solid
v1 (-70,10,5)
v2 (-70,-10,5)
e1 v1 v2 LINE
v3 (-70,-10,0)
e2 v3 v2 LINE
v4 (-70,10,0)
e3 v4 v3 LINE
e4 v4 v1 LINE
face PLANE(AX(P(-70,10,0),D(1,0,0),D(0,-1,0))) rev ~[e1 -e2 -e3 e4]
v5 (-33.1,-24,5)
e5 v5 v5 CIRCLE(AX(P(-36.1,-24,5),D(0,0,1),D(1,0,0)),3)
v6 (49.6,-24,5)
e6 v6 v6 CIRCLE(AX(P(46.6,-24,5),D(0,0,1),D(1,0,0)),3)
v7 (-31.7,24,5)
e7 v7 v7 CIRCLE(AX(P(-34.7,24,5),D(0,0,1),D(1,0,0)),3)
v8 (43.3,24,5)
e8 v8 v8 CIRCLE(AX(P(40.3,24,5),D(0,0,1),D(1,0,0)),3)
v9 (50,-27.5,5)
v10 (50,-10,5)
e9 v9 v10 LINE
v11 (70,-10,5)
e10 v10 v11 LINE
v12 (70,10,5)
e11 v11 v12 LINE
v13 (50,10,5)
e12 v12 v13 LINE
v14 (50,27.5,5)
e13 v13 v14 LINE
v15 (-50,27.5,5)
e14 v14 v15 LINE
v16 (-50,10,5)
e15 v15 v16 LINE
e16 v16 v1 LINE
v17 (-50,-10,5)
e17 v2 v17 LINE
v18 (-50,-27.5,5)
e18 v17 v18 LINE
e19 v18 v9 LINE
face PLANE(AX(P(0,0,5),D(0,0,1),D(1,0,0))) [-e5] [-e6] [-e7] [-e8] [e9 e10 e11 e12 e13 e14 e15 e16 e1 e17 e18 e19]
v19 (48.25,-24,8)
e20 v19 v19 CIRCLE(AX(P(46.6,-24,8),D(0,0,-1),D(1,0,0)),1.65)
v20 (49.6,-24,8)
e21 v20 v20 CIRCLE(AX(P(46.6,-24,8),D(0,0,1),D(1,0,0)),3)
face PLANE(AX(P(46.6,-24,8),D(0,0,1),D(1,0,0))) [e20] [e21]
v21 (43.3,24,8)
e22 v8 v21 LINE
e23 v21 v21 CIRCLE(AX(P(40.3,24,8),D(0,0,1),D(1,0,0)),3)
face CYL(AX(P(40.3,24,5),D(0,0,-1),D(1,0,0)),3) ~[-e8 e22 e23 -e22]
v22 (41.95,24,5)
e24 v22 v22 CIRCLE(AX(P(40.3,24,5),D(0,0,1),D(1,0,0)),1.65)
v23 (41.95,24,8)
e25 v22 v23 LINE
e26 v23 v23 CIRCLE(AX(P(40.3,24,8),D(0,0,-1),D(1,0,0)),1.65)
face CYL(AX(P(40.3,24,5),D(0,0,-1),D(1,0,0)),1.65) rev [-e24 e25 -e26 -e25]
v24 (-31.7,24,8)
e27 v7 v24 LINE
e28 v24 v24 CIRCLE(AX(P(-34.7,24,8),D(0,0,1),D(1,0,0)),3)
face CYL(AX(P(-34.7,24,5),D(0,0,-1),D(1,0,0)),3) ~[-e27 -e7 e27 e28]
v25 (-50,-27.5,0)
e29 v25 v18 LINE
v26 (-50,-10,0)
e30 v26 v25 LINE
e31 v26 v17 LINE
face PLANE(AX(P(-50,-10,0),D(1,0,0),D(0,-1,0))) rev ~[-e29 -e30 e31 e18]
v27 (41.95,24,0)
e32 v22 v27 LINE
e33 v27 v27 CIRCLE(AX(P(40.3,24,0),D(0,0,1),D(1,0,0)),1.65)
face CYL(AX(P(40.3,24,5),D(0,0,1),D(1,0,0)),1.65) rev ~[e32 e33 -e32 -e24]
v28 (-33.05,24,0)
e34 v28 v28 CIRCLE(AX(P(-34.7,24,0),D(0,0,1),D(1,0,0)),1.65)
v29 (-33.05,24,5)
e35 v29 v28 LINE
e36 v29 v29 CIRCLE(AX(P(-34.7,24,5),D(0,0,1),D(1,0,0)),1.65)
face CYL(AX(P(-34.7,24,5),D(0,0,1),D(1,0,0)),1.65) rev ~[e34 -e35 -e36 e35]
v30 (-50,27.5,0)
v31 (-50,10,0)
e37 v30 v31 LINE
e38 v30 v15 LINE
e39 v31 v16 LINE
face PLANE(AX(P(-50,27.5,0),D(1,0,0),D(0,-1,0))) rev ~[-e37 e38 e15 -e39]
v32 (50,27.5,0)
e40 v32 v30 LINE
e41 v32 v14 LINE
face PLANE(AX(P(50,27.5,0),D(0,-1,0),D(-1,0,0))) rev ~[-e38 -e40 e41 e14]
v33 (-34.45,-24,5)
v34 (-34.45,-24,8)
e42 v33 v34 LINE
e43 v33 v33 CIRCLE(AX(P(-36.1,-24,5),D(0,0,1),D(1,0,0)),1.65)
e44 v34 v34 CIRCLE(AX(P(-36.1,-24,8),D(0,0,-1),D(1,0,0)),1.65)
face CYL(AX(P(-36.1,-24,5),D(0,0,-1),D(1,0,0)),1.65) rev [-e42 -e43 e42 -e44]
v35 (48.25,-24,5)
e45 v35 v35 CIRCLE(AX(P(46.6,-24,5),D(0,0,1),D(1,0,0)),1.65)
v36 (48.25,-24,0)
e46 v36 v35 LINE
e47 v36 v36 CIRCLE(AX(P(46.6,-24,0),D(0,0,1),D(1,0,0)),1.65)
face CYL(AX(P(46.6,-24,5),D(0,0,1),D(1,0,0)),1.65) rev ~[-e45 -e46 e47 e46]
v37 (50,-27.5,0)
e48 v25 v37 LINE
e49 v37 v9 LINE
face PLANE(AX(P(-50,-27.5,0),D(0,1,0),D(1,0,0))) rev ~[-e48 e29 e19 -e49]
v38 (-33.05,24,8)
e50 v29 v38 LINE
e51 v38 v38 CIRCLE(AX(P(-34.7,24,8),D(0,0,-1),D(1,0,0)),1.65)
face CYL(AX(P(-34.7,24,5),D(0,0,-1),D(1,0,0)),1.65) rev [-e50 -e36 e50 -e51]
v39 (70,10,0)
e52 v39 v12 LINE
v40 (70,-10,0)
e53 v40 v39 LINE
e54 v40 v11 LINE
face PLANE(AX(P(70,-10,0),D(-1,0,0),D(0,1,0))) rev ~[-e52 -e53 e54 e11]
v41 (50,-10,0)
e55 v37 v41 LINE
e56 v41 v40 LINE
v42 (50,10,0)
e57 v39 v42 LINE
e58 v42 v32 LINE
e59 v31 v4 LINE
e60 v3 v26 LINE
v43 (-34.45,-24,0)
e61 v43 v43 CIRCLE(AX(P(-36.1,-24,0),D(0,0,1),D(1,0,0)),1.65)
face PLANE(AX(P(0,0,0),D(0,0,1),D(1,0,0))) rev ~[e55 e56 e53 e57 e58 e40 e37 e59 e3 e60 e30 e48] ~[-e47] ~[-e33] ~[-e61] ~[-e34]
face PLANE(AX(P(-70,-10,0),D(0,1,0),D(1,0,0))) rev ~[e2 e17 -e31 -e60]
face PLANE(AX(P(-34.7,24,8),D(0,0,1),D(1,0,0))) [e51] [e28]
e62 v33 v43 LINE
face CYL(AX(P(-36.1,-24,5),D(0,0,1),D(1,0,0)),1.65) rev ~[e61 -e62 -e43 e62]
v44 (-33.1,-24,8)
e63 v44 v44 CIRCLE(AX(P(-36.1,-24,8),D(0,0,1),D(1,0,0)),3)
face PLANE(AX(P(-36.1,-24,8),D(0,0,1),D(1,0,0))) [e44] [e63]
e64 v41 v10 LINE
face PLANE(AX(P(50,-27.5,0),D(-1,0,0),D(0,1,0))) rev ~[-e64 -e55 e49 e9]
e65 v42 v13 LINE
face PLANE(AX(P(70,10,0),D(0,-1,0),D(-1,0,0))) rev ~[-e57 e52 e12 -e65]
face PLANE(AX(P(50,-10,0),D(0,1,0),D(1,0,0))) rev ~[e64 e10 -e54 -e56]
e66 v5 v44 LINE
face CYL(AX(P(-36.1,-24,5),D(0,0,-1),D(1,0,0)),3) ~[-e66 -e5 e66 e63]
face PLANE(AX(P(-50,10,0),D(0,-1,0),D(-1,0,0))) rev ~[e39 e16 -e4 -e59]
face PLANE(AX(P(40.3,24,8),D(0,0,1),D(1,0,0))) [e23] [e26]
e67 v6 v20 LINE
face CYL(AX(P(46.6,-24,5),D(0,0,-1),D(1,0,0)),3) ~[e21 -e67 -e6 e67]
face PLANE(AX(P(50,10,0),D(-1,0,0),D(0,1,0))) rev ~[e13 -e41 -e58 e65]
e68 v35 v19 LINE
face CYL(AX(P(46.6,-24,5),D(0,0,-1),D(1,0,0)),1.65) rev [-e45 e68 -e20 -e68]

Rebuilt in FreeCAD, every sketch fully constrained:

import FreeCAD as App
import Part
import Sketcher

V = App.Vector
Q = App.Units.Quantity


def add_polygon(sketch, points):
    """Adds a closed chain of lines whose ends are joined by coincident constraints."""
    first, n = sketch.GeometryCount, len(points)
    for a, b in zip(points, points[1:] + points[:1]):
        sketch.addGeometry(Part.LineSegment(App.Vector(*a, 0), App.Vector(*b, 0)), False)
    for i in range(n):
        sketch.addConstraint(Sketcher.Constraint("Coincident", first + i, 2, first + (i + 1) % n, 1))

doc = App.newDocument("Part")
params = doc.addObject("Spreadsheet::Sheet", "Params")
for row, (alias, value) in enumerate([
    ("sketch1_width", "100 mm"),
    ("sketch1_width2", "20 mm"),
    ("sketch1_height", "17.5 mm"),
    ("pad1_length", "5 mm"),
    ("sketch2_diameter", "3.3 mm"),
    ("pocket1_length", "37.6 mm"),
    ("sketch3_diameter", "6 mm"),
    ("pad2_length", "3 mm"),
    ("sketch4_diameter", "3.3 mm"),
    ("pocket2_length", "25 mm"),
], start=1):
    params.set(f"A{row}", alias)
    params.set(f"B{row}", "=" + value)
    params.setAlias(f"B{row}", alias)

body = doc.addObject("PartDesign::Body", "Body")

# Sketch on XY plane
sketch1 = body.newObject("Sketcher::SketchObject", "Sketch")
sketch1.AttachmentSupport = (doc.getObject("XY_Plane"), [""])
sketch1.MapMode = "FlatFace"
add_polygon(sketch1, [(50, 10), (50, 27.5), (-50, 27.5), (-50, 10), (-70, 10), (-70, -10), (-50, -10), (-50, -27.5), (50, -27.5), (50, -10), (70, -10), (70, 10)])  # lines 0-11
sketch1.addConstraint([
    Sketcher.Constraint("Vertical", 0),
    Sketcher.Constraint("Horizontal", 1),
    Sketcher.Constraint("Vertical", 2),
    Sketcher.Constraint("Horizontal", 3),
    Sketcher.Constraint("Vertical", 4),
    Sketcher.Constraint("Horizontal", 5),
    Sketcher.Constraint("Vertical", 6),
    Sketcher.Constraint("Horizontal", 7),
    Sketcher.Constraint("Vertical", 8),
    Sketcher.Constraint("Horizontal", 9),
    Sketcher.Constraint("Vertical", 10),
    Sketcher.Constraint("Horizontal", 11),
    Sketcher.Constraint("Symmetric", 0, 2, 6, 2, -1, 1),
    Sketcher.Constraint("Symmetric", 2, 2, 8, 2, -1, 1),
    Sketcher.Constraint("Symmetric", 4, 2, 10, 2, -1, 1),
    Sketcher.Constraint("Symmetric", 5, 2, 8, 2, -2),
    Sketcher.Constraint("Equal", 11, 4),
    Sketcher.Constraint("DistanceX", 1, 2, 1, 1, Q("100 mm")),
    Sketcher.Constraint("DistanceX", 3, 2, 3, 1, Q("20 mm")),
    Sketcher.Constraint("DistanceY", 0, 1, 0, 2, Q("17.5 mm")),
])
sketch1.setExpression("Constraints[29]", "Params.sketch1_width")
sketch1.setExpression("Constraints[30]", "Params.sketch1_width2")
sketch1.setExpression("Constraints[31]", "Params.sketch1_height")
pad1 = body.newObject("PartDesign::Pad", "Pad")
pad1.Profile = sketch1
pad1.setExpression("Length", "Params.pad1_length")

# Sketch on XY plane
sketch2 = body.newObject("Sketcher::SketchObject", "Sketch001")
sketch2.AttachmentSupport = (doc.getObject("XY_Plane"), [""])
sketch2.MapMode = "FlatFace"
sketch2.AttachmentOffset = App.Placement(V(0, 0, 5), App.Rotation())
sketch2.addGeometry([
    Part.Circle(V(-34.7, 24, 0), V(0, 0, 1), 1.65),
    Part.Circle(V(40.3, 24, 0), V(0, 0, 1), 1.65),
    Part.Circle(V(-36.1, -24, 0), V(0, 0, 1), 1.65),
    Part.Circle(V(46.6, -24, 0), V(0, 0, 1), 1.65),
], False)
sketch2.addConstraint([
    Sketcher.Constraint("Equal", 0, 1),
    Sketcher.Constraint("Equal", 1, 2),
    Sketcher.Constraint("Equal", 2, 3),
    Sketcher.Constraint("Horizontal", 0, 3, 1, 3),
    Sketcher.Constraint("Horizontal", 2, 3, 3, 3),
    Sketcher.Constraint("Diameter", 0, Q("3.3 mm")),
    Sketcher.Constraint("DistanceY", -1, 1, 0, 3, Q("24 mm")),
    Sketcher.Constraint("DistanceY", 2, 3, -1, 1, Q("24 mm")),
    Sketcher.Constraint("DistanceX", 0, 3, 1, 3, Q("75 mm")),
    Sketcher.Constraint("DistanceX", 0, 3, -1, 1, Q("34.7 mm")),
    Sketcher.Constraint("DistanceX", 2, 3, -1, 1, Q("36.1 mm")),
    Sketcher.Constraint("DistanceX", -1, 1, 3, 3, Q("46.6 mm")),
])
sketch2.setExpression("Constraints[5]", "Params.sketch2_diameter")
pocket1 = body.newObject("PartDesign::Pocket", "Pocket")
pocket1.Profile = sketch2
pocket1.setExpression("Length", "Params.pocket1_length")
pocket1.Midplane = True

# Sketch on XY plane
sketch3 = body.newObject("Sketcher::SketchObject", "Sketch002")
sketch3.AttachmentSupport = (doc.getObject("XY_Plane"), [""])
sketch3.MapMode = "FlatFace"
sketch3.AttachmentOffset = App.Placement(V(0, 0, 5), App.Rotation())
sketch3.addGeometry([
    Part.Circle(V(-34.7, 24, 0), V(0, 0, 1), 3),
    Part.Circle(V(40.3, 24, 0), V(0, 0, 1), 3),
    Part.Circle(V(46.6, -24, 0), V(0, 0, 1), 3),
    Part.Circle(V(-36.1, -24, 0), V(0, 0, 1), 3),
], False)
sketch3.addConstraint([
    Sketcher.Constraint("Equal", 0, 1),
    Sketcher.Constraint("Equal", 1, 2),
    Sketcher.Constraint("Equal", 2, 3),
    Sketcher.Constraint("Horizontal", 0, 3, 1, 3),
    Sketcher.Constraint("Horizontal", 2, 3, 3, 3),
    Sketcher.Constraint("Diameter", 0, Q("6 mm")),
    Sketcher.Constraint("DistanceY", -1, 1, 0, 3, Q("24 mm")),
    Sketcher.Constraint("DistanceY", 2, 3, -1, 1, Q("24 mm")),
    Sketcher.Constraint("DistanceX", 0, 3, 1, 3, Q("75 mm")),
    Sketcher.Constraint("DistanceX", 0, 3, -1, 1, Q("34.7 mm")),
    Sketcher.Constraint("DistanceX", -1, 1, 2, 3, Q("46.6 mm")),
    Sketcher.Constraint("DistanceX", 3, 3, -1, 1, Q("36.1 mm")),
])
sketch3.setExpression("Constraints[5]", "Params.sketch3_diameter")
pad2 = body.newObject("PartDesign::Pad", "Pad001")
pad2.Profile = sketch3
pad2.setExpression("Length", "Params.pad2_length")

# Sketch on XY plane
sketch4 = body.newObject("Sketcher::SketchObject", "Sketch003")
sketch4.AttachmentSupport = (doc.getObject("XY_Plane"), [""])
sketch4.MapMode = "FlatFace"
sketch4.AttachmentOffset = App.Placement(V(0, 0, 5), App.Rotation())
sketch4.addGeometry([
    Part.Circle(V(-34.7, 24, 0), V(0, 0, 1), 1.65),
    Part.Circle(V(40.3, 24, 0), V(0, 0, 1), 1.65),
    Part.Circle(V(-36.1, -24, 0), V(0, 0, 1), 1.65),
    Part.Circle(V(46.6, -24, 0), V(0, 0, 1), 1.65),
], False)
sketch4.addConstraint([
    Sketcher.Constraint("Equal", 0, 1),
    Sketcher.Constraint("Equal", 1, 2),
    Sketcher.Constraint("Equal", 2, 3),
    Sketcher.Constraint("Horizontal", 0, 3, 1, 3),
    Sketcher.Constraint("Horizontal", 2, 3, 3, 3),
    Sketcher.Constraint("Diameter", 0, Q("3.3 mm")),
    Sketcher.Constraint("DistanceY", -1, 1, 0, 3, Q("24 mm")),
    Sketcher.Constraint("DistanceY", 2, 3, -1, 1, Q("24 mm")),
    Sketcher.Constraint("DistanceX", 0, 3, 1, 3, Q("75 mm")),
    Sketcher.Constraint("DistanceX", 0, 3, -1, 1, Q("34.7 mm")),
    Sketcher.Constraint("DistanceX", 2, 3, -1, 1, Q("36.1 mm")),
    Sketcher.Constraint("DistanceX", -1, 1, 3, 3, Q("46.6 mm")),
])
sketch4.setExpression("Constraints[5]", "Params.sketch4_diameter")
pocket2 = body.newObject("PartDesign::Pocket", "Pocket001")
pocket2.Profile = sketch4
pocket2.setExpression("Length", "Params.pocket2_length")
pocket2.Reversed = True

doc.recompute()
